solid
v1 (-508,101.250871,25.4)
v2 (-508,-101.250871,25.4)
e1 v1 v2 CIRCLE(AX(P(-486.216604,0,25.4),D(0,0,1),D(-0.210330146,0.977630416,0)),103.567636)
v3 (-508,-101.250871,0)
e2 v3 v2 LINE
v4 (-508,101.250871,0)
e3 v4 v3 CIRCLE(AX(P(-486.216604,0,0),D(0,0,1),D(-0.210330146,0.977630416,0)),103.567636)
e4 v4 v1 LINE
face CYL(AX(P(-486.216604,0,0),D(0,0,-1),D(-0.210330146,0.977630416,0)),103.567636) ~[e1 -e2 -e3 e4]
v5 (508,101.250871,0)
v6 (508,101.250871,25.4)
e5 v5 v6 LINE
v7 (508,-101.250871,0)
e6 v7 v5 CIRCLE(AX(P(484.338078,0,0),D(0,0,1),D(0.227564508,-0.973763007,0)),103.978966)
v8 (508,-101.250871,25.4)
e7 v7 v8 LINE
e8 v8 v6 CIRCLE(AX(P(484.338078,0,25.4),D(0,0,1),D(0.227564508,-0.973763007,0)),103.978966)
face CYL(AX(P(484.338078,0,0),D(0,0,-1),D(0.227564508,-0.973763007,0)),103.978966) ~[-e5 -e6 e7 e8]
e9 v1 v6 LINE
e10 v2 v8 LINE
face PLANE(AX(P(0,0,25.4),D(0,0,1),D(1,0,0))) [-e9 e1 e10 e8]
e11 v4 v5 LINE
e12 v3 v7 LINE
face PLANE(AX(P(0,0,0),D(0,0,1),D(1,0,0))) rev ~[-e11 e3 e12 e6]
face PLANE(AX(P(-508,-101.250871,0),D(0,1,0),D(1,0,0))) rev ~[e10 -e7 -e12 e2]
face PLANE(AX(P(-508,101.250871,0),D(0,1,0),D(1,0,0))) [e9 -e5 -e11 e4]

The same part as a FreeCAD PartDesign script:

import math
import FreeCAD as App
import Part
import Sketcher
Q = App.Units.Quantity

doc = App.newDocument("Part")
body = doc.addObject("PartDesign::Body", "Body")

sketch1 = doc.addObject("Sketcher::SketchObject", "Sketch")
body.addObject(sketch1)
sketch1.AttachmentSupport = (doc.XY_Plane, [""])
sketch1.MapMode = "FlatFace"
sketch1.addGeometry([
    Part.LineSegment(App.Vector(-508, -101, 0), App.Vector(508, -101, 0)),
    Part.ArcOfCircle(Part.Circle(App.Vector(484, 0, 0), App.Vector(0, 0, 1), 104), math.radians(-77), math.radians(77)),
    Part.LineSegment(App.Vector(508, 101, 0), App.Vector(-508, 101, 0)),
    Part.ArcOfCircle(Part.Circle(App.Vector(-486, 0, 0), App.Vector(0, 0, 1), 104), math.radians(102), math.radians(258)),
], False)
sketch1.addConstraint([
    Sketcher.Constraint("Coincident", 0, 2, 1, 1),
    Sketcher.Constraint("Coincident", 1, 2, 2, 1),
    Sketcher.Constraint("Coincident", 2, 2, 3, 1),
    Sketcher.Constraint("Coincident", 3, 2, 0, 1),
    Sketcher.Constraint("Horizontal", 0),
    Sketcher.Constraint("Horizontal", 2),
    Sketcher.Constraint("Symmetric", 0, 2, 2, 2, -1, 1),
    Sketcher.Constraint("PointOnObject", 1, 3, -1),
    Sketcher.Constraint("PointOnObject", 3, 3, -1),
    Sketcher.Constraint("DistanceX", 0, 1, 0, 2, Q("40 in")),
    Sketcher.Constraint("Radius", 1, 103.978966),
    Sketcher.Constraint("Radius", 3, 103.567636),
    Sketcher.Constraint("DistanceY", 0, 2, -1, 1, 101.250871),
])
pad1 = doc.addObject("PartDesign::Pad", "Pad")
body.addObject(pad1)
pad1.Profile = sketch1
pad1.Length = Q("1 in")

doc.recompute()
